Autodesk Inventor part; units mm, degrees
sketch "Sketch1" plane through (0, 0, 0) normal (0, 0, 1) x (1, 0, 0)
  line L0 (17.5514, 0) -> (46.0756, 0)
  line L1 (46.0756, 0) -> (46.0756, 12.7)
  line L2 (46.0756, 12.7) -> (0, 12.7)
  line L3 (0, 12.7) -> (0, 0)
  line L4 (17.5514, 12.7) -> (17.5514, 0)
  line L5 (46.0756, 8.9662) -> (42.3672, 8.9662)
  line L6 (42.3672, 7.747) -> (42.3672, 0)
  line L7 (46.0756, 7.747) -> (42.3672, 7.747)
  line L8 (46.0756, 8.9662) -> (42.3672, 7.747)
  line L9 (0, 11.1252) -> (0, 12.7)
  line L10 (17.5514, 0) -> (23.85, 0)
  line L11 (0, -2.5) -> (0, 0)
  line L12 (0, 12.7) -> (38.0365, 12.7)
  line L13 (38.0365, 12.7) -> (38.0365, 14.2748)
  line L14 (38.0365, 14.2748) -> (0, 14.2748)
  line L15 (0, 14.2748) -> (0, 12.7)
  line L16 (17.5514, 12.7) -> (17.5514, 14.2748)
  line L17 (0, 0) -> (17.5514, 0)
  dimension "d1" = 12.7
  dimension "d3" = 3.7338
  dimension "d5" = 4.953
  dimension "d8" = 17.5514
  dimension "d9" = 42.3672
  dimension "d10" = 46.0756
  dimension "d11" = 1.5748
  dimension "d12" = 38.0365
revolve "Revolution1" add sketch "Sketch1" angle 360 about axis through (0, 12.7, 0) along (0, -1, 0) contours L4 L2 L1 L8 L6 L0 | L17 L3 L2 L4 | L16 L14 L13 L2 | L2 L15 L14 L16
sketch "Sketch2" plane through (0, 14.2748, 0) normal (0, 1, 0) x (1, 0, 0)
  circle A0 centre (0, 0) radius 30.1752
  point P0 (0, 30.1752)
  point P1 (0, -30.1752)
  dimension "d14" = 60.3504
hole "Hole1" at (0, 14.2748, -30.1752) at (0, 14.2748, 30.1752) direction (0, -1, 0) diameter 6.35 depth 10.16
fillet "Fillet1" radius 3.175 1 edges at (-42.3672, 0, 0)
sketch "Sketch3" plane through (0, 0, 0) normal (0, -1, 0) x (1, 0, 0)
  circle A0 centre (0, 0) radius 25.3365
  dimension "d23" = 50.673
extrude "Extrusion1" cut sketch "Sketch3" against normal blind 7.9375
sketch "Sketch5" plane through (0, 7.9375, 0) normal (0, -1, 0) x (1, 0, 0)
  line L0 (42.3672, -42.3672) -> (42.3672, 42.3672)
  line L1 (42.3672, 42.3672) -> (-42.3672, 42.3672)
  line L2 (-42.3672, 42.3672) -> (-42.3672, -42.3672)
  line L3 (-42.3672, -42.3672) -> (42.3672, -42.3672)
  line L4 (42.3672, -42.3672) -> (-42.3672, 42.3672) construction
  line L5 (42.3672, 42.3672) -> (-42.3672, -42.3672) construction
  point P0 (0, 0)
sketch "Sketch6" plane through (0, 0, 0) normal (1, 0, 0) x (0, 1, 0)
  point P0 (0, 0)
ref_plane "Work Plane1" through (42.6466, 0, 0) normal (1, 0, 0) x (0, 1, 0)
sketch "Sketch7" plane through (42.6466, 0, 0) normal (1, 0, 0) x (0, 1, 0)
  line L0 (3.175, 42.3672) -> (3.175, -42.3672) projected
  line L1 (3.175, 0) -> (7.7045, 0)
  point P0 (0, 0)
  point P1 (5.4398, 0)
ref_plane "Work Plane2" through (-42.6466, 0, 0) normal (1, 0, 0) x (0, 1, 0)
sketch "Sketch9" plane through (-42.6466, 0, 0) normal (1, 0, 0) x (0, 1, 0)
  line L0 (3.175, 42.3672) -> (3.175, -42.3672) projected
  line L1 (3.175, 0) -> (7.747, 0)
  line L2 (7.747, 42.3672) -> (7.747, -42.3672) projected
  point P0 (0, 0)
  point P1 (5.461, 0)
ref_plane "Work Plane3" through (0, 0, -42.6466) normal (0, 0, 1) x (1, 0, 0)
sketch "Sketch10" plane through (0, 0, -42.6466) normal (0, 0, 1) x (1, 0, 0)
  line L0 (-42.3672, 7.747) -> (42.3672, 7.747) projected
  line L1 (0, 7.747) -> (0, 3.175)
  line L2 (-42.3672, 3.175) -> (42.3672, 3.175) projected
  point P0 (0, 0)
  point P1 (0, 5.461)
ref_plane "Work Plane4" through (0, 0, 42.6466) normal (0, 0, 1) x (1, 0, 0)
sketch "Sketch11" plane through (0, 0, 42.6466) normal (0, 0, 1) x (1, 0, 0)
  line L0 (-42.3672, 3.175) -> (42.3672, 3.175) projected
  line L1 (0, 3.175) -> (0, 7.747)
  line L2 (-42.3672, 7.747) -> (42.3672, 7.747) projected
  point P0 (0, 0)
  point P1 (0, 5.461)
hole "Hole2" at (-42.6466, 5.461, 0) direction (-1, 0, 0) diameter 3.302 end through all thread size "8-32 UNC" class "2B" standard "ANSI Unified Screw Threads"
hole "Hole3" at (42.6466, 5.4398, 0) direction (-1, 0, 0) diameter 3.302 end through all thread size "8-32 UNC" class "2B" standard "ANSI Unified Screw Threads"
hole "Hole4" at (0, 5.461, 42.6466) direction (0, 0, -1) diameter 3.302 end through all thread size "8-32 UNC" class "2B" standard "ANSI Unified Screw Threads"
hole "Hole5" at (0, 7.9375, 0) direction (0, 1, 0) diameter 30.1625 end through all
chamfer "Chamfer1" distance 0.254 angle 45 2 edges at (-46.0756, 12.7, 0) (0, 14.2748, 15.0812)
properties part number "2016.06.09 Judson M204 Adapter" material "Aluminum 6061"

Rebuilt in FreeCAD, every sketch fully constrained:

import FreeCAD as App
import Part
import Sketcher
Q = App.Units.Quantity


def edges_at(feature, points):
    """Names of the edges that pass closest to the given points."""
    edges = feature.Shape.Edges
    near = lambda p: min(range(len(edges)), key=lambda i: edges[i].distToShape(Part.Vertex(*p))[0])
    return sorted({f"Edge{near(p) + 1}" for p in points})

doc = App.newDocument("Part")
params = doc.addObject("Spreadsheet::Sheet", "Params")
for row, (alias, value) in enumerate([
    ("sketch1_width", "1.668 in"),
    ("sketch1_height", "0.062 in"),
    ("sketch1_height2", "0.147 in"),
    ("revolution_angle", "360 deg"),
    ("sketch2_diameter", "0.25 in"),
    ("hole_diameter", "0.25 in"),
    ("hole_depth", "0.4 in"),
    ("fillet_radius", "0.125 in"),
    ("sketch3_diameter", "1.995 in"),
    ("pocket1_length", "0.3125 in"),
    ("sketch4_diameter", "0.13 in"),
    ("hole2_diameter", "0.13 in"),
    ("sketch5_diameter", "0.13 in"),
    ("hole3_diameter", "0.13 in"),
    ("sketch6_diameter", "0.13 in"),
    ("hole4_diameter", "0.13 in"),
    ("sketch7_diameter", "1.1875 in"),
    ("hole5_diameter", "1.1875 in"),
    ("chamfer_size", "0.01 in"),
], start=1):
    params.set(f"A{row}", alias)
    params.set(f"B{row}", "=" + value)
    params.setAlias(f"B{row}", alias)

body = doc.addObject("PartDesign::Body", "Body")

# Sketch on XY plane
sketch1 = body.newObject("Sketcher::SketchObject", "Sketch")
sketch1.AttachmentSupport = (doc.getObject("XY_Plane"), [""])
sketch1.MapMode = "FlatFace"
sketch1.addGeometry([
    Part.LineSegment(App.Vector(46.0756, 12.7, 0), App.Vector(38.0365, 12.7, 0)),  # 0
    Part.LineSegment(App.Vector(38.0365, 12.7, 0), App.Vector(38.0365, 14.2748, 0)),  # 1
    Part.LineSegment(App.Vector(38.0365, 14.2748, 0), App.Vector(0, 14.2748, 0)),  # 2
    Part.LineSegment(App.Vector(0, 14.2748, 0), App.Vector(0, 0, 0)),  # 3
    Part.LineSegment(App.Vector(0, 0, 0), App.Vector(42.3672, 0, 0)),  # 4
    Part.LineSegment(App.Vector(42.3672, 0, 0), App.Vector(42.3672, 7.747, 0)),  # 5
    Part.LineSegment(App.Vector(42.3672, 7.747, 0), App.Vector(46.0756, 8.9662, 0)),  # 6
    Part.LineSegment(App.Vector(46.0756, 8.9662, 0), App.Vector(46.0756, 12.7, 0)),  # 7
], False)
sketch1.addConstraint([
    Sketcher.Constraint("Coincident", 0, 2, 1, 1),
    Sketcher.Constraint("Coincident", 1, 2, 2, 1),
    Sketcher.Constraint("Coincident", 2, 2, 3, 1),
    Sketcher.Constraint("Coincident", 3, 2, 4, 1),
    Sketcher.Constraint("Coincident", 4, 2, 5, 1),
    Sketcher.Constraint("Coincident", 5, 2, 6, 1),
    Sketcher.Constraint("Coincident", 6, 2, 7, 1),
    Sketcher.Constraint("Coincident", 7, 2, 0, 1),
    Sketcher.Constraint("Horizontal", 0),
    Sketcher.Constraint("Vertical", 1),
    Sketcher.Constraint("Horizontal", 2),
    Sketcher.Constraint("Vertical", 3),
    Sketcher.Constraint("Horizontal", 4),
    Sketcher.Constraint("Vertical", 5),
    Sketcher.Constraint("Vertical", 7),
    Sketcher.Constraint("Coincident", 3, 2, -1, 1),
    Sketcher.Constraint("DistanceY", -1, 1, 0, 2, Q("0.5 in")),
    Sketcher.Constraint("DistanceX", 4, 1, 4, 2, Q("1.668 in")),
    Sketcher.Constraint("DistanceY", 1, 1, 1, 2, Q("0.062 in")),
    Sketcher.Constraint("DistanceY", 7, 1, 7, 2, Q("0.147 in")),
    Sketcher.Constraint("DistanceX", 2, 2, 2, 1, Q("1.4975 in")),
    Sketcher.Constraint("DistanceX", -1, 1, 6, 2, Q("1.814 in")),
    Sketcher.Constraint("DistanceY", 5, 2, 0, 2, Q("0.195 in")),
])
sketch1.setExpression("Constraints[17]", "Params.sketch1_width")
sketch1.setExpression("Constraints[18]", "Params.sketch1_height")
sketch1.setExpression("Constraints[19]", "Params.sketch1_height2")
revolution = body.newObject("PartDesign::Revolution", "Revolution")
revolution.Profile = sketch1
revolution.ReferenceAxis = (sketch1, ["V_Axis"])
revolution.setExpression("Angle", "Params.revolution_angle")

# Sketch on XZ plane
sketch2 = body.newObject("Sketcher::SketchObject", "Sketch001")
sketch2.AttachmentSupport = (doc.getObject("XZ_Plane"), [""])
sketch2.MapMode = "FlatFace"
sketch2.AttachmentOffset = App.Placement(App.Vector(0, 0, -0.562 * 25.4), App.Rotation())
sketch2.addGeometry([
    Part.Circle(App.Vector(0, -30.1752, 0), App.Vector(0, 0, 1), 3.175),
    Part.Circle(App.Vector(0, 30.1752, 0), App.Vector(0, 0, 1), 3.175),
], False)
sketch2.addConstraint([
    Sketcher.Constraint("Equal", 0, 1),
    Sketcher.Constraint("Symmetric", 0, 3, 1, 3, -1, 1),
    Sketcher.Constraint("PointOnObject", 0, 3, -2),
    Sketcher.Constraint("Diameter", 0, Q("0.25 in")),
    Sketcher.Constraint("DistanceY", 0, 3, -1, 1, Q("1.188 in")),
])
sketch2.setExpression("Constraints[3]", "Params.sketch2_diameter")
doc.recompute()
hole = body.newObject("PartDesign::Hole", "Hole")
hole.Profile = sketch2
hole.ThreadType = "None"
hole.setExpression("Diameter", "Params.hole_diameter")
hole.DepthType = "Dimension"
hole.setExpression("Depth", "Params.hole_depth")
hole.DrillPoint = "Flat"
hole.Reversed = True
doc.recompute()

fillet = body.newObject("PartDesign::Fillet", "Fillet")
fillet.Base = (hole, edges_at(hole, [(-42.367, 0, 0)]))
fillet.setExpression("Radius", "Params.fillet_radius")

# Sketch on XZ plane
sketch3 = body.newObject("Sketcher::SketchObject", "Sketch002")
sketch3.AttachmentSupport = (doc.getObject("XZ_Plane"), [""])
sketch3.MapMode = "FlatFace"
sketch3.addGeometry(Part.Circle(App.Vector(0, 0, 0), App.Vector(0, 0, 1), 25.3365), False)
sketch3.addConstraint([
    Sketcher.Constraint("Coincident", 0, 3, -1, 1),
    Sketcher.Constraint("Diameter", 0, Q("1.995 in")),
])
sketch3.setExpression("Constraints[1]", "Params.sketch3_diameter")
pocket1 = body.newObject("PartDesign::Pocket", "Pocket")
pocket1.Profile = sketch3
pocket1.setExpression("Length", "Params.pocket1_length")

# Sketch on YZ plane
sketch4 = body.newObject("Sketcher::SketchObject", "Sketch003")
sketch4.AttachmentSupport = (doc.getObject("YZ_Plane"), [""])
sketch4.MapMode = "FlatFace"
sketch4.AttachmentOffset = App.Placement(App.Vector(0, 0, -1.679 * 25.4), App.Rotation())
sketch4.addGeometry(Part.Circle(App.Vector(5.461, 0, 0), App.Vector(0, 0, 1), 1.651), False)
sketch4.addConstraint([
    Sketcher.Constraint("PointOnObject", 0, 3, -1),
    Sketcher.Constraint("Diameter", 0, Q("0.13 in")),
    Sketcher.Constraint("DistanceX", -1, 1, 0, 3, Q("0.215 in")),
])
sketch4.setExpression("Constraints[1]", "Params.sketch4_diameter")
doc.recompute()
hole2 = body.newObject("PartDesign::Hole", "Hole001")
hole2.Profile = sketch4
hole2.ThreadType = "None"
hole2.setExpression("Diameter", "Params.hole2_diameter")
hole2.DepthType = "ThroughAll"

# Sketch on YZ plane
sketch5 = body.newObject("Sketcher::SketchObject", "Sketch004")
sketch5.AttachmentSupport = (doc.getObject("YZ_Plane"), [""])
sketch5.MapMode = "FlatFace"
sketch5.AttachmentOffset = App.Placement(App.Vector(0, 0, 1.679 * 25.4), App.Rotation())
sketch5.addGeometry(Part.Circle(App.Vector(5.4398, 0, 0), App.Vector(0, 0, 1), 1.651), False)
sketch5.addConstraint([
    Sketcher.Constraint("PointOnObject", 0, 3, -1),
    Sketcher.Constraint("Diameter", 0, Q("0.13 in")),
    Sketcher.Constraint("DistanceX", -1, 1, 0, 3, Q("5.4398 mm")),
])
sketch5.setExpression("Constraints[1]", "Params.sketch5_diameter")
doc.recompute()
hole3 = body.newObject("PartDesign::Hole", "Hole002")
hole3.Profile = sketch5
hole3.ThreadType = "None"
hole3.setExpression("Diameter", "Params.hole3_diameter")
hole3.DepthType = "ThroughAll"

# Sketch on XY plane
sketch6 = body.newObject("Sketcher::SketchObject", "Sketch005")
sketch6.AttachmentSupport = (doc.getObject("XY_Plane"), [""])
sketch6.MapMode = "FlatFace"
sketch6.AttachmentOffset = App.Placement(App.Vector(0, 0, 1.679 * 25.4), App.Rotation())
sketch6.addGeometry(Part.Circle(App.Vector(0, 5.461, 0), App.Vector(0, 0, 1), 1.651), False)
sketch6.addConstraint([
    Sketcher.Constraint("PointOnObject", 0, 3, -2),
    Sketcher.Constraint("Diameter", 0, Q("0.13 in")),
    Sketcher.Constraint("DistanceY", -1, 1, 0, 3, Q("0.215 in")),
])
sketch6.setExpression("Constraints[1]", "Params.sketch6_diameter")
doc.recompute()
hole4 = body.newObject("PartDesign::Hole", "Hole003")
hole4.Profile = sketch6
hole4.ThreadType = "None"
hole4.setExpression("Diameter", "Params.hole4_diameter")
hole4.DepthType = "ThroughAll"

# Sketch on XZ plane
sketch7 = body.newObject("Sketcher::SketchObject", "Sketch006")
sketch7.AttachmentSupport = (doc.getObject("XZ_Plane"), [""])
sketch7.MapMode = "FlatFace"
sketch7.AttachmentOffset = App.Placement(App.Vector(0, 0, -0.3125 * 25.4), App.Rotation())
sketch7.addGeometry(Part.Circle(App.Vector(0, 0, 0), App.Vector(0, 0, 1), 15.08125), False)
sketch7.addConstraint([
    Sketcher.Constraint("Coincident", 0, 3, -1, 1),
    Sketcher.Constraint("Diameter", 0, Q("1.1875 in")),
])
sketch7.setExpression("Constraints[1]", "Params.sketch7_diameter")
doc.recompute()
hole5 = body.newObject("PartDesign::Hole", "Hole004")
hole5.Profile = sketch7
hole5.ThreadType = "None"
hole5.setExpression("Diameter", "Params.hole5_diameter")
hole5.DepthType = "ThroughAll"
doc.recompute()

chamfer = body.newObject("PartDesign::Chamfer", "Chamfer")
chamfer.Base = (hole5, edges_at(hole5, [(-46.076, 12.7, 0), (0, 14.275, 15.081)]))
chamfer.setExpression("Size", "Params.chamfer_size")

doc.recompute()
